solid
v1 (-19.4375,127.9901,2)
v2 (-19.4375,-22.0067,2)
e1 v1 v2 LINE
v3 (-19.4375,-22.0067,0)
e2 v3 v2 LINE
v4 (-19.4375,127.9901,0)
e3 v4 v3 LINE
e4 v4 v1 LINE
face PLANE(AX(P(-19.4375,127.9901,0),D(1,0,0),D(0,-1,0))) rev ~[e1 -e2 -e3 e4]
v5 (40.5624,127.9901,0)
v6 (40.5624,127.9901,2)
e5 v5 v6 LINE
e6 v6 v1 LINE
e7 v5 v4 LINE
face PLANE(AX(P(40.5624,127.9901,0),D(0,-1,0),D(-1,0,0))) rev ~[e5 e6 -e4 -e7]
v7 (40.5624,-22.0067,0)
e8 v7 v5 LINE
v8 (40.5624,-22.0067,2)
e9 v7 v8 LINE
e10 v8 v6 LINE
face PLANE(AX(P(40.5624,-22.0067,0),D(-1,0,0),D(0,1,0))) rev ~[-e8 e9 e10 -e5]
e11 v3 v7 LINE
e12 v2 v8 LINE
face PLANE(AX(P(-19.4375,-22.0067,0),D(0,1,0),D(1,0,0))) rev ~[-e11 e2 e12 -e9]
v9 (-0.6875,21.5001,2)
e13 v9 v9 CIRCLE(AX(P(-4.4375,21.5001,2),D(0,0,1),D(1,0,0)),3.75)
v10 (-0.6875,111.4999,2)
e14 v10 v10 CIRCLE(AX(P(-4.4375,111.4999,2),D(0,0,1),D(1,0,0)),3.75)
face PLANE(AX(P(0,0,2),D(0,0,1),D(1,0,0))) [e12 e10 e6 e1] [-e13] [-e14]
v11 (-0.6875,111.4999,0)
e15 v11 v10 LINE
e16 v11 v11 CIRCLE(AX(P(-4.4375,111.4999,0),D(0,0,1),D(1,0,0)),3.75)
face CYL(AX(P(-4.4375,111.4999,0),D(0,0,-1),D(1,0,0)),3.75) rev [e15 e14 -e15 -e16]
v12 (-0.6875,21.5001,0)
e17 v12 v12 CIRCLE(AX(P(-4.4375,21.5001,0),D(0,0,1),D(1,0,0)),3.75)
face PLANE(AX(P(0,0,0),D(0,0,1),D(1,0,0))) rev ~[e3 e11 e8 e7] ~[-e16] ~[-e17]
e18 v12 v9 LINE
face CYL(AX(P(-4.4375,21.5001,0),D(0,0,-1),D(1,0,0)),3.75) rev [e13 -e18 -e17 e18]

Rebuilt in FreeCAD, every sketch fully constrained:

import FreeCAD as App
import Part
import Sketcher
from FreeCAD import Vector


def add_polygon(sketch, points):
    """Adds a closed chain of lines whose ends are joined by coincident constraints."""
    first, n = sketch.GeometryCount, len(points)
    for a, b in zip(points, points[1:] + points[:1]):
        sketch.addGeometry(Part.LineSegment(App.Vector(*a, 0), App.Vector(*b, 0)), False)
    for i in range(n):
        sketch.addConstraint(Sketcher.Constraint("Coincident", first + i, 2, first + (i + 1) % n, 1))

doc = App.newDocument("Part")
params = doc.addObject("Spreadsheet::Sheet", "Params")
for row, (alias, value) in enumerate([
    ("sketch1_diameter", "7.5 mm"),
    ("sketch1_width", "60 mm"),
    ("pad1_length", "2 mm"),
], start=1):
    params.set(f"A{row}", alias)
    params.set(f"B{row}", "=" + value)
    params.setAlias(f"B{row}", alias)

body = doc.addObject("PartDesign::Body", "Body")

sketch1 = body.newObject("Sketcher::SketchObject", "Sketch")
sketch1.AttachmentSupport = (doc.getObject("XY_Plane"), [""])
sketch1.MapMode = "FlatFace"
add_polygon(sketch1, [(-19.4, -22), (40.6, -22), (40.6, 128), (-19.4, 128)])
sketch1.addGeometry(Part.Circle(Vector(-4.4, 21.5, 0), Vector(0, 0, 1), 3.8), False)
sketch1.addGeometry(Part.Circle(Vector(-4.4, 111.5, 0), Vector(0, 0, 1), 3.8), False)
sketch1.addConstraint([
    Sketcher.Constraint("Horizontal", 0),
    Sketcher.Constraint("Vertical", 1),
    Sketcher.Constraint("Horizontal", 2),
    Sketcher.Constraint("Vertical", 3),
    Sketcher.Constraint("Equal", 4, 5),
    Sketcher.Constraint("Vertical", 4, 3, 5, 3),
    Sketcher.Constraint("Diameter", 4, 7.5),
    Sketcher.Constraint("DistanceX", 0, 1, 0, 2, 60.0),
    Sketcher.Constraint("DistanceX", 4, 3, 0, 2, 45.0),
    Sketcher.Constraint("DistanceY", -1, 1, 4, 3, 21.5),
    Sketcher.Constraint("DistanceY", -1, 1, 5, 3, 111.5),
    Sketcher.Constraint("DistanceY", -1, 1, 1, 2, 127.99),
    Sketcher.Constraint("DistanceY", 1, 1, 1, 2, 149.9968),
    Sketcher.Constraint("DistanceX", 4, 3, -1, 1, 4.4375),
])
sketch1.setExpression("Constraints[10]", "Params.sketch1_diameter")
sketch1.setExpression("Constraints[11]", "Params.sketch1_width")
pad1 = body.newObject("PartDesign::Pad", "Pad")
pad1.Profile = sketch1
pad1.setExpression("Length", "Params.pad1_length")

doc.recompute()
